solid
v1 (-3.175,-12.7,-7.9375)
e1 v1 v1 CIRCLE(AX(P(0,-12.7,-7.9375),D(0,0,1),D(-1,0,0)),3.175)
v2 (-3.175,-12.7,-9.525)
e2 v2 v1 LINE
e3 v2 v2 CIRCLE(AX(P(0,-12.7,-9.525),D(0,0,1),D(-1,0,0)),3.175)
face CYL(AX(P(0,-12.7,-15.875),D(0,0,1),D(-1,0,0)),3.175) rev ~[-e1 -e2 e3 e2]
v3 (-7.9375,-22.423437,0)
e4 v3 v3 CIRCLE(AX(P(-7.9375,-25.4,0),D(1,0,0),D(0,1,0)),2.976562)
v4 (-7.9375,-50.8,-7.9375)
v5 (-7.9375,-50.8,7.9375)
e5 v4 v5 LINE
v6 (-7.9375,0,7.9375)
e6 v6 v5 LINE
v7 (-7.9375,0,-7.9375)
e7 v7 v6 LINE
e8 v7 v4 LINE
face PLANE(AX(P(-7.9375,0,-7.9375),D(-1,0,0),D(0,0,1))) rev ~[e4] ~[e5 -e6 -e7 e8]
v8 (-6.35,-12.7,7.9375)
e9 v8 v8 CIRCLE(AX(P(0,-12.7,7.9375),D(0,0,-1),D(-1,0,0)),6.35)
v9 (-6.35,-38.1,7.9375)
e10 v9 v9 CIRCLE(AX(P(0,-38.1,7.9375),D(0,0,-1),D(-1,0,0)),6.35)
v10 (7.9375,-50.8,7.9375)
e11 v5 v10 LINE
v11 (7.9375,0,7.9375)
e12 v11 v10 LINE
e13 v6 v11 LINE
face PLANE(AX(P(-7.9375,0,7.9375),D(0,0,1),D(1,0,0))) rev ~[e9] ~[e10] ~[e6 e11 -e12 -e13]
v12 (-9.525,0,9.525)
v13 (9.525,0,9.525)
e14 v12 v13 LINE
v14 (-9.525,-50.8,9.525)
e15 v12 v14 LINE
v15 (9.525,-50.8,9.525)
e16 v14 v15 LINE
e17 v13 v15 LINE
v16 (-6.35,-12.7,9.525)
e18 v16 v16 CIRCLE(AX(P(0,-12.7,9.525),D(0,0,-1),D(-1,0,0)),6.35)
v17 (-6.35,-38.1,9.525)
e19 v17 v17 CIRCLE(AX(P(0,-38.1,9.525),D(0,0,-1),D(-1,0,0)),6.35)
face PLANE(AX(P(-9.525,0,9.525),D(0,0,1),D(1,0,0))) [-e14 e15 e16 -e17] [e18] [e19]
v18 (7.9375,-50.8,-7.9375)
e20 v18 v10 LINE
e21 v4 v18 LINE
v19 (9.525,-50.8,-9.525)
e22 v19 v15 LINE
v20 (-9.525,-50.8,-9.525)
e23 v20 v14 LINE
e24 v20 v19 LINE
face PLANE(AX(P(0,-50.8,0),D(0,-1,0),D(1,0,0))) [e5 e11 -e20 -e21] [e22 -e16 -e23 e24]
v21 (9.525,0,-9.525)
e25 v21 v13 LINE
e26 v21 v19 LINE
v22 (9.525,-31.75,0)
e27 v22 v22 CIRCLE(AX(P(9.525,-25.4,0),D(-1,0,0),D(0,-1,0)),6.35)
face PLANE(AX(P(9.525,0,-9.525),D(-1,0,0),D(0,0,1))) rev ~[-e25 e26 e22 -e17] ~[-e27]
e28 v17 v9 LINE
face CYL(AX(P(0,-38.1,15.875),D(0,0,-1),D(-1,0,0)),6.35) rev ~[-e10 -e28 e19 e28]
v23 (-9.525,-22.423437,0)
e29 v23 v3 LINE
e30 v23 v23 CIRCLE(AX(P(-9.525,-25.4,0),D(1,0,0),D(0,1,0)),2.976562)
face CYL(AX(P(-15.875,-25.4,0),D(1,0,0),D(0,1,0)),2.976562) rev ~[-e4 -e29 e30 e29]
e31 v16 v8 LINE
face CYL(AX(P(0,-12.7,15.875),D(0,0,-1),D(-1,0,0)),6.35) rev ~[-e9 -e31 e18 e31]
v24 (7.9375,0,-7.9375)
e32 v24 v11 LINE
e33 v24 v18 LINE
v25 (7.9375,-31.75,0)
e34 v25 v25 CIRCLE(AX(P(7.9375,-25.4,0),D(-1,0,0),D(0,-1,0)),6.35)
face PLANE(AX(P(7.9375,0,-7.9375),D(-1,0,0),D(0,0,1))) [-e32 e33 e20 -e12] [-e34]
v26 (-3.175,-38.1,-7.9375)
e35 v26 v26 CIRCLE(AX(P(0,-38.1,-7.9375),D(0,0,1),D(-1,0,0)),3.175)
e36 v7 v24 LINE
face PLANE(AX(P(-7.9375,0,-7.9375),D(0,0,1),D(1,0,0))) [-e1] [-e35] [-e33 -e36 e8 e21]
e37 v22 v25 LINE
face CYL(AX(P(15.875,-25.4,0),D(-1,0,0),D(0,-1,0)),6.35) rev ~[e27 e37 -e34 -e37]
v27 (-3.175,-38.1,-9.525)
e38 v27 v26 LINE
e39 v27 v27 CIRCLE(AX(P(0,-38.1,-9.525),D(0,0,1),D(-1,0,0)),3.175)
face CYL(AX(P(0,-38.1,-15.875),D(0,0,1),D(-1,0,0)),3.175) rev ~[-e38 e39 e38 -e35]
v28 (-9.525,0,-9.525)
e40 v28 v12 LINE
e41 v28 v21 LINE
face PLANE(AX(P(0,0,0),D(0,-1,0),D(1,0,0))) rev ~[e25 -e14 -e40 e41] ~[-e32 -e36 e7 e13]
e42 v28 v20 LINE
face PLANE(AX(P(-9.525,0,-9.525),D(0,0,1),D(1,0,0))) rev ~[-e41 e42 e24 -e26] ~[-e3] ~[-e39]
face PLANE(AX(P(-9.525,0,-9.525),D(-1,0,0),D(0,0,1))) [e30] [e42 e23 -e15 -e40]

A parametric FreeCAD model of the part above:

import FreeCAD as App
import Part
import Sketcher
from FreeCAD import Vector
Q = App.Units.Quantity


def add_polygon(sketch, points):
    """Adds a closed chain of lines whose ends are joined by coincident constraints."""
    first, n = sketch.GeometryCount, len(points)
    for a, b in zip(points, points[1:] + points[:1]):
        sketch.addGeometry(Part.LineSegment(App.Vector(*a, 0), App.Vector(*b, 0)), False)
    for i in range(n):
        sketch.addConstraint(Sketcher.Constraint("Coincident", first + i, 2, first + (i + 1) % n, 1))

doc = App.newDocument("Part")
params = doc.addObject("Spreadsheet::Sheet", "Params")
for row, (alias, value) in enumerate([
    ("sketch1_width", "0.75 in"),
    ("sketch1_width2", "0.625 in"),
    ("pad1_length", "2 in"),
    ("sketch2_diameter", "0.234375 in"),
    ("hole_diameter", "0.234375 in"),
    ("hole_depth", "0.25 in"),
    ("sketch3_diameter", "0.5 in"),
    ("hole2_diameter", "0.5 in"),
    ("hole2_depth", "0.25 in"),
    ("sketch4_diameter", "0.5 in"),
    ("hole3_diameter", "0.5 in"),
    ("hole3_depth", "0.25 in"),
    ("sketch5_diameter", "0.25 in"),
    ("hole4_diameter", "0.25 in"),
    ("hole4_depth", "0.25 in"),
], start=1):
    params.set(f"A{row}", alias)
    params.set(f"B{row}", "=" + value)
    params.setAlias(f"B{row}", alias)

body = doc.addObject("PartDesign::Body", "Body")

sketch1 = body.newObject("Sketcher::SketchObject", "Sketch")
sketch1.AttachmentSupport = (doc.getObject("XZ_Plane"), [""])
sketch1.MapMode = "FlatFace"
add_polygon(sketch1, [(-9.525, 9.525), (-9.525, -9.525), (9.525, -9.525), (9.525, 9.525)])
add_polygon(sketch1, [(7.9375, -7.9375), (-7.9375, -7.9375), (-7.9375, 7.9375), (7.9375, 7.9375)])
sketch1.addConstraint(Sketcher.Constraint("Vertical", 0))
sketch1.addConstraint(Sketcher.Constraint("Horizontal", 1))
sketch1.addConstraint(Sketcher.Constraint("Vertical", 2))
sketch1.addConstraint(Sketcher.Constraint("Horizontal", 3))
sketch1.addConstraint(Sketcher.Constraint("Horizontal", 4))
sketch1.addConstraint(Sketcher.Constraint("Vertical", 5))
sketch1.addConstraint(Sketcher.Constraint("Horizontal", 6))
sketch1.addConstraint(Sketcher.Constraint("Vertical", 7))
sketch1.addConstraint(Sketcher.Constraint("Symmetric", 0, 2, 2, 2, -1, 1))
sketch1.addConstraint(Sketcher.Constraint("Symmetric", 4, 2, 6, 2, -1, 1))
sketch1.addConstraint(Sketcher.Constraint("Equal", 3, 0))
sketch1.addConstraint(Sketcher.Constraint("Equal", 6, 5))
sketch1.addConstraint(Sketcher.Constraint("DistanceX", 1, 1, 1, 2, Q("0.75 in")))
sketch1.addConstraint(Sketcher.Constraint("DistanceX", 4, 2, 4, 1, Q("0.625 in")))
sketch1.setExpression("Constraints[20]", "Params.sketch1_width")
sketch1.setExpression("Constraints[21]", "Params.sketch1_width2")
pad1 = body.newObject("PartDesign::Pad", "Pad")
pad1.Profile = sketch1
pad1.setExpression("Length", "Params.pad1_length")

sketch2 = body.newObject("Sketcher::SketchObject", "Sketch001")
sketch2.AttachmentSupport = (doc.getObject("YZ_Plane"), [""])
sketch2.MapMode = "FlatFace"
sketch2.AttachmentOffset = App.Placement(Vector(0, 0, -0.375 * 25.4), App.Rotation())
sketch2.addGeometry(Part.Circle(Vector(-25.4, 0, 0), Vector(0, 0, 1), 2.976562), False)
sketch2.addConstraint(Sketcher.Constraint("PointOnObject", 0, 3, -1))
sketch2.addConstraint(Sketcher.Constraint("Diameter", 0, Q("0.234375 in")))
sketch2.addConstraint(Sketcher.Constraint("DistanceX", 0, 3, -1, 1, Q("1 in")))
sketch2.setExpression("Constraints[1]", "Params.sketch2_diameter")
doc.recompute()
hole = body.newObject("PartDesign::Hole", "Hole")
hole.Profile = sketch2
hole.ThreadType = "None"
hole.setExpression("Diameter", "Params.hole_diameter")
hole.DepthType = "Dimension"
hole.setExpression("Depth", "Params.hole_depth")
hole.DrillPoint = "Flat"
hole.Reversed = True

sketch3 = body.newObject("Sketcher::SketchObject", "Sketch002")
sketch3.AttachmentSupport = (doc.getObject("YZ_Plane"), [""])
sketch3.MapMode = "FlatFace"
sketch3.AttachmentOffset = App.Placement(Vector(0, 0, 0.375 * 25.4), App.Rotation())
sketch3.addGeometry(Part.Circle(Vector(-25.4, 0, 0), Vector(0, 0, 1), 6.35), False)
sketch3.addConstraint(Sketcher.Constraint("PointOnObject", 0, 3, -1))
sketch3.addConstraint(Sketcher.Constraint("Diameter", 0, Q("0.5 in")))
sketch3.addConstraint(Sketcher.Constraint("DistanceX", 0, 3, -1, 1, Q("1 in")))
sketch3.setExpression("Constraints[1]", "Params.sketch3_diameter")
doc.recompute()
hole2 = body.newObject("PartDesign::Hole", "Hole001")
hole2.Profile = sketch3
hole2.ThreadType = "None"
hole2.setExpression("Diameter", "Params.hole2_diameter")
hole2.DepthType = "Dimension"
hole2.setExpression("Depth", "Params.hole2_depth")
hole2.DrillPoint = "Flat"

sketch4 = body.newObject("Sketcher::SketchObject", "Sketch003")
sketch4.AttachmentSupport = (doc.getObject("XY_Plane"), [""])
sketch4.MapMode = "FlatFace"
sketch4.AttachmentOffset = App.Placement(Vector(0, 0, 0.375 * 25.4), App.Rotation())
sketch4.addGeometry(Part.Circle(Vector(0, -12.7, 0), Vector(0, 0, 1), 6.35), False)
sketch4.addGeometry(Part.Circle(Vector(0, -38.1, 0), Vector(0, 0, 1), 6.35), False)
sketch4.addConstraint(Sketcher.Constraint("Equal", 0, 1))
sketch4.addConstraint(Sketcher.Constraint("PointOnObject", 0, 3, -2))
sketch4.addConstraint(Sketcher.Constraint("PointOnObject", 1, 3, -2))
sketch4.addConstraint(Sketcher.Constraint("Diameter", 0, Q("0.5 in")))
sketch4.addConstraint(Sketcher.Constraint("DistanceY", 1, 3, 0, 3, Q("1 in")))
sketch4.addConstraint(Sketcher.Constraint("DistanceY", 0, 3, -1, 1, Q("0.5 in")))
sketch4.setExpression("Constraints[3]", "Params.sketch4_diameter")
doc.recompute()
hole3 = body.newObject("PartDesign::Hole", "Hole002")
hole3.Profile = sketch4
hole3.ThreadType = "None"
hole3.setExpression("Diameter", "Params.hole3_diameter")
hole3.DepthType = "Dimension"
hole3.setExpression("Depth", "Params.hole3_depth")
hole3.DrillPoint = "Flat"

sketch5 = body.newObject("Sketcher::SketchObject", "Sketch004")
sketch5.AttachmentSupport = (doc.getObject("XY_Plane"), [""])
sketch5.MapMode = "FlatFace"
sketch5.AttachmentOffset = App.Placement(Vector(0, 0, -0.375 * 25.4), App.Rotation())
sketch5.addGeometry(Part.Circle(Vector(0, -12.7, 0), Vector(0, 0, 1), 3.175), False)
sketch5.addGeometry(Part.Circle(Vector(0, -38.1, 0), Vector(0, 0, 1), 3.175), False)
sketch5.addConstraint(Sketcher.Constraint("Equal", 0, 1))
sketch5.addConstraint(Sketcher.Constraint("PointOnObject", 0, 3, -2))
sketch5.addConstraint(Sketcher.Constraint("PointOnObject", 1, 3, -2))
sketch5.addConstraint(Sketcher.Constraint("Diameter", 0, Q("0.25 in")))
sketch5.addConstraint(Sketcher.Constraint("DistanceY", 1, 3, 0, 3, Q("1 in")))
sketch5.addConstraint(Sketcher.Constraint("DistanceY", 0, 3, -1, 1, Q("0.5 in")))
sketch5.setExpression("Constraints[3]", "Params.sketch5_diameter")
doc.recompute()
hole4 = body.newObject("PartDesign::Hole", "Hole003")
hole4.Profile = sketch5
hole4.ThreadType = "None"
hole4.setExpression("Diameter", "Params.hole4_diameter")
hole4.DepthType = "Dimension"
hole4.setExpression("Depth", "Params.hole4_depth")
hole4.DrillPoint = "Flat"
hole4.Reversed = True

doc.recompute()
